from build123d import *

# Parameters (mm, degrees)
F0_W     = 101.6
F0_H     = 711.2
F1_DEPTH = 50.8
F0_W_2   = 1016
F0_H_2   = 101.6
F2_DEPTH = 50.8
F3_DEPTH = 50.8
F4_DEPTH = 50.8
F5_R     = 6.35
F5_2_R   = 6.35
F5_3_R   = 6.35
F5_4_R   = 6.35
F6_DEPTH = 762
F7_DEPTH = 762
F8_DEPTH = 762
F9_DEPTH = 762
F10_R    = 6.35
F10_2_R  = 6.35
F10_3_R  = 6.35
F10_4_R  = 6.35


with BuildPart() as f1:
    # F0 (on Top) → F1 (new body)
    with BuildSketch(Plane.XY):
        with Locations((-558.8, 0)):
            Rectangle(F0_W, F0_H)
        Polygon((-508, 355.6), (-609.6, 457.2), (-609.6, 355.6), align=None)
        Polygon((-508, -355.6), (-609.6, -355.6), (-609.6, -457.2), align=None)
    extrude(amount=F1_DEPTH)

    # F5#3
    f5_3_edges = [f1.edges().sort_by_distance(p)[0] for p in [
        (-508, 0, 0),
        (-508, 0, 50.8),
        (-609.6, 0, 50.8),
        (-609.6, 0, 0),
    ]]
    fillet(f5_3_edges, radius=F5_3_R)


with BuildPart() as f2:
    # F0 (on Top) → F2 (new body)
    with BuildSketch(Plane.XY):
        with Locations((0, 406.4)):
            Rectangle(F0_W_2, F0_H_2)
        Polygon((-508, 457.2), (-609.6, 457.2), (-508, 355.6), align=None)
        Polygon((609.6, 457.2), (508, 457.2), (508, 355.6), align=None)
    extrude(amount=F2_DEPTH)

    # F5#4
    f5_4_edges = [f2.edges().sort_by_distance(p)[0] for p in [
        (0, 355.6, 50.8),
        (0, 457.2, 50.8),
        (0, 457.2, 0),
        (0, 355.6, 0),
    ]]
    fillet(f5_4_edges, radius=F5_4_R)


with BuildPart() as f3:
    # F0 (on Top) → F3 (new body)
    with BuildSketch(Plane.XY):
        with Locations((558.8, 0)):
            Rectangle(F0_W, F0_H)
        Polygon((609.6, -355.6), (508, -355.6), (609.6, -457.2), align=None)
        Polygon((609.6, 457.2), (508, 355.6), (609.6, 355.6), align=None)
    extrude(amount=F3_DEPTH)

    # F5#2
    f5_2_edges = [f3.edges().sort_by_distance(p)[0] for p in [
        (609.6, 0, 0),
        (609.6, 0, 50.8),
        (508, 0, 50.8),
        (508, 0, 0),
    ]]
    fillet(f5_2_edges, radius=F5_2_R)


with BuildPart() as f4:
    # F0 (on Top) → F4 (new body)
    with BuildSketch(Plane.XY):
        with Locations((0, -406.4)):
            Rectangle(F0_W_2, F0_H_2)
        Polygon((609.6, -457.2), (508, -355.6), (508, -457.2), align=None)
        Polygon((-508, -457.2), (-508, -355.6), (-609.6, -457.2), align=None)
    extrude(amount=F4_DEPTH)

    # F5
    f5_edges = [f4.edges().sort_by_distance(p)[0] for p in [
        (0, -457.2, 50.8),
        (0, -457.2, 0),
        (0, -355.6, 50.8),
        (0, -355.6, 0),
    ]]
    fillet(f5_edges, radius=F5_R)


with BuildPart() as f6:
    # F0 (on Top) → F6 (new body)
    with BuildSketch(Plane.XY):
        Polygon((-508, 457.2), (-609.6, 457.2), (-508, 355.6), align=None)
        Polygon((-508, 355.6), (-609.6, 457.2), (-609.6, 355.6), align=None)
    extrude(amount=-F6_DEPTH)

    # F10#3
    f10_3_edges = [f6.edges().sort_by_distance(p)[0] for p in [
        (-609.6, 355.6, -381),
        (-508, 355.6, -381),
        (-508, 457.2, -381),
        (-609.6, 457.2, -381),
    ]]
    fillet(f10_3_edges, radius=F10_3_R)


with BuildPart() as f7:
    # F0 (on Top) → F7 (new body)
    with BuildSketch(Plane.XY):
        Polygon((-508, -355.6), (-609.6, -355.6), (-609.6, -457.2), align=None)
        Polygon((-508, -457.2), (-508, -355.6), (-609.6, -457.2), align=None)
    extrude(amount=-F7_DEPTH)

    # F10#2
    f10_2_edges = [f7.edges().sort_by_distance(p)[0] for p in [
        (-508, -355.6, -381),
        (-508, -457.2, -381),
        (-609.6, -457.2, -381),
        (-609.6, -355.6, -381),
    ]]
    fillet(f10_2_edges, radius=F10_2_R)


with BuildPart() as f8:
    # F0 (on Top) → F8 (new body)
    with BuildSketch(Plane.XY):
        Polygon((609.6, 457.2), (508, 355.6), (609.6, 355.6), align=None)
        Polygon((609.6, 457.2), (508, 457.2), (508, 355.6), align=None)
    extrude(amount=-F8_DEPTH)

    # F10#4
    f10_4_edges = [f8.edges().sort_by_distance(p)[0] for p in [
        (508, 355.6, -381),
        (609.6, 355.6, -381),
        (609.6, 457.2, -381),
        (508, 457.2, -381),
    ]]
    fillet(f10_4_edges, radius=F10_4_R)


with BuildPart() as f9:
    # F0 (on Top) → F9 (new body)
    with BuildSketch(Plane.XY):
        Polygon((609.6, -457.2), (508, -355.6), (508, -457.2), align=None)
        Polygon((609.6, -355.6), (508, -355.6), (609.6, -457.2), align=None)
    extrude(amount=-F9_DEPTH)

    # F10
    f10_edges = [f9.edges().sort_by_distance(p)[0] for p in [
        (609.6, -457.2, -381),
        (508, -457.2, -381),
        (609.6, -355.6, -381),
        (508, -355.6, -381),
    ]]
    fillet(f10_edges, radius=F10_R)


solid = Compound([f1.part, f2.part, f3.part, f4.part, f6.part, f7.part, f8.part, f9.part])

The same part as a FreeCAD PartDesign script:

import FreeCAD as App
import Part
import Sketcher
Q = App.Units.Quantity


def edges_at(feature, points):
    """Names of the edges that pass closest to the given points."""
    edges = feature.Shape.Edges
    near = lambda p: min(range(len(edges)), key=lambda i: edges[i].distToShape(Part.Vertex(*p))[0])
    return sorted({f"Edge{near(p) + 1}" for p in points})

doc = App.newDocument("Part")
body = doc.addObject("PartDesign::Body", "Body")

# Sketch on XY plane
sketch1 = body.newObject("Sketcher::SketchObject", "Sketch")
sketch1.AttachmentSupport = (doc.getObject("XY_Plane"), [""])
sketch1.MapMode = "FlatFace"
sketch1.addGeometry([
    Part.LineSegment(App.Vector(-508, -356, 0), App.Vector(-508, 356, 0)),
    Part.LineSegment(App.Vector(-508, 356, 0), App.Vector(-610, 457, 0)),
    Part.LineSegment(App.Vector(-610, 457, 0), App.Vector(-610, -457, 0)),
    Part.LineSegment(App.Vector(-610, -457, 0), App.Vector(-508, -356, 0)),
], False)
sketch1.addConstraint([
    Sketcher.Constraint("Coincident", 0, 2, 1, 1),
    Sketcher.Constraint("Coincident", 1, 2, 2, 1),
    Sketcher.Constraint("Coincident", 2, 2, 3, 1),
    Sketcher.Constraint("Coincident", 3, 2, 0, 1),
    Sketcher.Constraint("Vertical", 0),
    Sketcher.Constraint("Vertical", 2),
    Sketcher.Constraint("Perpendicular", 1, 3),
    Sketcher.Constraint("Equal", 1, 3),
    Sketcher.Constraint("DistanceY", 0, 1, 0, 2, Q("28 in")),
    Sketcher.Constraint("DistanceY", 2, 2, 2, 1, Q("36 in")),
    Sketcher.Constraint("DistanceX", 0, 2, -1, 1, Q("20 in")),
    Sketcher.Constraint("DistanceY", -1, 1, 0, 2, Q("14 in")),
])
pad1 = body.newObject("PartDesign::Pad", "Pad")
pad1.Profile = sketch1
pad1.Length = Q("2 in")
doc.recompute()

fillet = body.newObject("PartDesign::Fillet", "Fillet")
fillet.Base = (pad1, edges_at(pad1, [
    (-508, 0, 0),
    (-508, 0, 50.8),
    (-609.6, 0, 50.8),
    (-609.6, 0, 0),
]))
fillet.Radius = Q("0.25 in")
body2 = doc.addObject("PartDesign::Body", "Body001")

# Sketch on XY plane
sketch2 = body2.newObject("Sketcher::SketchObject", "Sketch001")
sketch2.AttachmentSupport = (doc.getObject("XY_Plane001"), [""])
sketch2.MapMode = "FlatFace"
sketch2.addGeometry([
    Part.LineSegment(App.Vector(-508, 356, 0), App.Vector(508, 356, 0)),
    Part.LineSegment(App.Vector(508, 356, 0), App.Vector(610, 457, 0)),
    Part.LineSegment(App.Vector(610, 457, 0), App.Vector(-610, 457, 0)),
    Part.LineSegment(App.Vector(-610, 457, 0), App.Vector(-508, 356, 0)),
], False)
sketch2.addConstraint([
    Sketcher.Constraint("Coincident", 0, 2, 1, 1),
    Sketcher.Constraint("Coincident", 1, 2, 2, 1),
    Sketcher.Constraint("Coincident", 2, 2, 3, 1),
    Sketcher.Constraint("Coincident", 3, 2, 0, 1),
    Sketcher.Constraint("Horizontal", 0),
    Sketcher.Constraint("Horizontal", 2),
    Sketcher.Constraint("Perpendicular", 1, 3),
    Sketcher.Constraint("Equal", 1, 3),
    Sketcher.Constraint("DistanceX", 0, 1, 0, 2, Q("40 in")),
    Sketcher.Constraint("DistanceX", 2, 2, 2, 1, Q("48 in")),
    Sketcher.Constraint("DistanceX", -1, 1, 0, 2, Q("20 in")),
    Sketcher.Constraint("DistanceY", -1, 1, 0, 2, Q("14 in")),
])
pad2 = body2.newObject("PartDesign::Pad", "Pad001")
pad2.Profile = sketch2
pad2.Length = Q("2 in")
doc.recompute()

fillet2 = body2.newObject("PartDesign::Fillet", "Fillet001")
fillet2.Base = (pad2, edges_at(pad2, [
    (0, 355.6, 50.8),
    (0, 457.2, 50.8),
    (0, 457.2, 0),
    (0, 355.6, 0),
]))
fillet2.Radius = Q("0.25 in")
body3 = doc.addObject("PartDesign::Body", "Body002")

# Sketch on XY plane
sketch3 = body3.newObject("Sketcher::SketchObject", "Sketch002")
sketch3.AttachmentSupport = (doc.getObject("XY_Plane002"), [""])
sketch3.MapMode = "FlatFace"
sketch3.addGeometry([
    Part.LineSegment(App.Vector(508, 356, 0), App.Vector(508, -356, 0)),
    Part.LineSegment(App.Vector(508, -356, 0), App.Vector(610, -457, 0)),
    Part.LineSegment(App.Vector(610, -457, 0), App.Vector(610, 457, 0)),
    Part.LineSegment(App.Vector(610, 457, 0), App.Vector(508, 356, 0)),
], False)
sketch3.addConstraint([
    Sketcher.Constraint("Coincident", 0, 2, 1, 1),
    Sketcher.Constraint("Coincident", 1, 2, 2, 1),
    Sketcher.Constraint("Coincident", 2, 2, 3, 1),
    Sketcher.Constraint("Coincident", 3, 2, 0, 1),
    Sketcher.Constraint("Vertical", 0),
    Sketcher.Constraint("Vertical", 2),
    Sketcher.Constraint("Perpendicular", 1, 3),
    Sketcher.Constraint("Equal", 1, 3),
    Sketcher.Constraint("DistanceY", 0, 2, 0, 1, Q("28 in")),
    Sketcher.Constraint("DistanceY", 2, 1, 2, 2, Q("36 in")),
    Sketcher.Constraint("DistanceX", -1, 1, 0, 2, Q("20 in")),
    Sketcher.Constraint("DistanceY", 0, 2, -1, 1, Q("14 in")),
])
pad3 = body3.newObject("PartDesign::Pad", "Pad002")
pad3.Profile = sketch3
pad3.Length = Q("2 in")
doc.recompute()

fillet3 = body3.newObject("PartDesign::Fillet", "Fillet002")
fillet3.Base = (pad3, edges_at(pad3, [
    (609.6, 0, 0),
    (609.6, 0, 50.8),
    (508, 0, 50.8),
    (508, 0, 0),
]))
fillet3.Radius = Q("0.25 in")
body4 = doc.addObject("PartDesign::Body", "Body003")

# Sketch on XY plane
sketch4 = body4.newObject("Sketcher::SketchObject", "Sketch003")
sketch4.AttachmentSupport = (doc.getObject("XY_Plane003"), [""])
sketch4.MapMode = "FlatFace"
sketch4.addGeometry([
    Part.LineSegment(App.Vector(610, -457, 0), App.Vector(508, -356, 0)),
    Part.LineSegment(App.Vector(508, -356, 0), App.Vector(-508, -356, 0)),
    Part.LineSegment(App.Vector(-508, -356, 0), App.Vector(-610, -457, 0)),
    Part.LineSegment(App.Vector(-610, -457, 0), App.Vector(610, -457, 0)),
], False)
sketch4.addConstraint([
    Sketcher.Constraint("Coincident", 0, 2, 1, 1),
    Sketcher.Constraint("Coincident", 1, 2, 2, 1),
    Sketcher.Constraint("Coincident", 2, 2, 3, 1),
    Sketcher.Constraint("Coincident", 3, 2, 0, 1),
    Sketcher.Constraint("Horizontal", 1),
    Sketcher.Constraint("Horizontal", 3),
    Sketcher.Constraint("Perpendicular", 0, 2),
    Sketcher.Constraint("Equal", 0, 2),
    Sketcher.Constraint("DistanceX", 1, 2, 1, 1, Q("40 in")),
    Sketcher.Constraint("DistanceX", 3, 1, 3, 2, Q("48 in")),
    Sketcher.Constraint("DistanceX", -1, 1, 0, 2, Q("20 in")),
    Sketcher.Constraint("DistanceY", 0, 2, -1, 1, Q("14 in")),
])
pad4 = body4.newObject("PartDesign::Pad", "Pad003")
pad4.Profile = sketch4
pad4.Length = Q("2 in")
doc.recompute()

fillet4 = body4.newObject("PartDesign::Fillet", "Fillet003")
fillet4.Base = (pad4, edges_at(pad4, [
    (0, -457.2, 50.8),
    (0, -457.2, 0),
    (0, -355.6, 50.8),
    (0, -355.6, 0),
]))
fillet4.Radius = Q("0.25 in")
body5 = doc.addObject("PartDesign::Body", "Body004")

# Sketch on XY plane
sketch5 = body5.newObject("Sketcher::SketchObject", "Sketch004")
sketch5.AttachmentSupport = (doc.getObject("XY_Plane004"), [""])
sketch5.MapMode = "FlatFace"
sketch5.addGeometry([
    Part.LineSegment(App.Vector(-508, 457, 0), App.Vector(-610, 457, 0)),
    Part.LineSegment(App.Vector(-610, 457, 0), App.Vector(-610, 356, 0)),
    Part.LineSegment(App.Vector(-610, 356, 0), App.Vector(-508, 356, 0)),
    Part.LineSegment(App.Vector(-508, 356, 0), App.Vector(-508, 457, 0)),
], False)
sketch5.addConstraint([
    Sketcher.Constraint("Coincident", 0, 2, 1, 1),
    Sketcher.Constraint("Coincident", 1, 2, 2, 1),
    Sketcher.Constraint("Coincident", 2, 2, 3, 1),
    Sketcher.Constraint("Coincident", 3, 2, 0, 1),
    Sketcher.Constraint("Horizontal", 0),
    Sketcher.Constraint("Vertical", 1),
    Sketcher.Constraint("Horizontal", 2),
    Sketcher.Constraint("Vertical", 3),
    Sketcher.Constraint("Equal", 2, 1),
    Sketcher.Constraint("DistanceX", 0, 2, 0, 1, Q("4 in")),
    Sketcher.Constraint("DistanceX", 0, 2, -1, 1, Q("24 in")),
    Sketcher.Constraint("DistanceY", -1, 1, 0, 2, Q("18 in")),
])
pad5 = body5.newObject("PartDesign::Pad", "Pad004")
pad5.Profile = sketch5
pad5.Length = Q("30 in")
pad5.Reversed = True
doc.recompute()

fillet5 = body5.newObject("PartDesign::Fillet", "Fillet004")
fillet5.Base = (pad5, edges_at(pad5, [
    (-609.6, 355.6, -381),
    (-508, 355.6, -381),
    (-508, 457.2, -381),
    (-609.6, 457.2, -381),
]))
fillet5.Radius = Q("0.25 in")
body6 = doc.addObject("PartDesign::Body", "Body005")

# Sketch on XY plane
sketch6 = body6.newObject("Sketcher::SketchObject", "Sketch005")
sketch6.AttachmentSupport = (doc.getObject("XY_Plane005"), [""])
sketch6.MapMode = "FlatFace"
sketch6.addGeometry([
    Part.LineSegment(App.Vector(-508, -356, 0), App.Vector(-610, -356, 0)),
    Part.LineSegment(App.Vector(-610, -356, 0), App.Vector(-610, -457, 0)),
    Part.LineSegment(App.Vector(-610, -457, 0), App.Vector(-508, -457, 0)),
    Part.LineSegment(App.Vector(-508, -457, 0), App.Vector(-508, -356, 0)),
], False)
sketch6.addConstraint([
    Sketcher.Constraint("Coincident", 0, 2, 1, 1),
    Sketcher.Constraint("Coincident", 1, 2, 2, 1),
    Sketcher.Constraint("Coincident", 2, 2, 3, 1),
    Sketcher.Constraint("Coincident", 3, 2, 0, 1),
    Sketcher.Constraint("Horizontal", 0),
    Sketcher.Constraint("Vertical", 1),
    Sketcher.Constraint("Horizontal", 2),
    Sketcher.Constraint("Vertical", 3),
    Sketcher.Constraint("Equal", 2, 1),
    Sketcher.Constraint("DistanceX", 0, 2, 0, 1, Q("4 in")),
    Sketcher.Constraint("DistanceX", 0, 2, -1, 1, Q("24 in")),
    Sketcher.Constraint("DistanceY", 0, 2, -1, 1, Q("14 in")),
])
pad6 = body6.newObject("PartDesign::Pad", "Pad005")
pad6.Profile = sketch6
pad6.Length = Q("30 in")
pad6.Reversed = True
doc.recompute()

fillet6 = body6.newObject("PartDesign::Fillet", "Fillet005")
fillet6.Base = (pad6, edges_at(pad6, [
    (-508, -355.6, -381),
    (-508, -457.2, -381),
    (-609.6, -457.2, -381),
    (-609.6, -355.6, -381),
]))
fillet6.Radius = Q("0.25 in")
body7 = doc.addObject("PartDesign::Body", "Body006")

# Sketch on XY plane
sketch7 = body7.newObject("Sketcher::SketchObject", "Sketch006")
sketch7.AttachmentSupport = (doc.getObject("XY_Plane006"), [""])
sketch7.MapMode = "FlatFace"
sketch7.addGeometry([
    Part.LineSegment(App.Vector(508, 356, 0), App.Vector(610, 356, 0)),
    Part.LineSegment(App.Vector(610, 356, 0), App.Vector(610, 457, 0)),
    Part.LineSegment(App.Vector(610, 457, 0), App.Vector(508, 457, 0)),
    Part.LineSegment(App.Vector(508, 457, 0), App.Vector(508, 356, 0)),
], False)
sketch7.addConstraint([
    Sketcher.Constraint("Coincident", 0, 2, 1, 1),
    Sketcher.Constraint("Coincident", 1, 2, 2, 1),
    Sketcher.Constraint("Coincident", 2, 2, 3, 1),
    Sketcher.Constraint("Coincident", 3, 2, 0, 1),
    Sketcher.Constraint("Horizontal", 0),
    Sketcher.Constraint("Vertical", 1),
    Sketcher.Constraint("Horizontal", 2),
    Sketcher.Constraint("Vertical", 3),
    Sketcher.Constraint("Equal", 2, 1),
    Sketcher.Constraint("DistanceX", 0, 1, 0, 2, Q("4 in")),
    Sketcher.Constraint("DistanceX", -1, 1, 0, 2, Q("24 in")),
    Sketcher.Constraint("DistanceY", -1, 1, 0, 2, Q("14 in")),
])
pad7 = body7.newObject("PartDesign::Pad", "Pad006")
pad7.Profile = sketch7
pad7.Length = Q("30 in")
pad7.Reversed = True
doc.recompute()

fillet7 = body7.newObject("PartDesign::Fillet", "Fillet006")
fillet7.Base = (pad7, edges_at(pad7, [
    (508, 355.6, -381),
    (609.6, 355.6, -381),
    (609.6, 457.2, -381),
    (508, 457.2, -381),
]))
fillet7.Radius = Q("0.25 in")
body8 = doc.addObject("PartDesign::Body", "Body007")

# Sketch on XY plane
sketch8 = body8.newObject("Sketcher::SketchObject", "Sketch007")
sketch8.AttachmentSupport = (doc.getObject("XY_Plane007"), [""])
sketch8.MapMode = "FlatFace"
sketch8.addGeometry([
    Part.LineSegment(App.Vector(508, -356, 0), App.Vector(508, -457, 0)),
    Part.LineSegment(App.Vector(508, -457, 0), App.Vector(610, -457, 0)),
    Part.LineSegment(App.Vector(610, -457, 0), App.Vector(610, -356, 0)),
    Part.LineSegment(App.Vector(610, -356, 0), App.Vector(508, -356, 0)),
], False)
sketch8.addConstraint([
    Sketcher.Constraint("Coincident", 0, 2, 1, 1),
    Sketcher.Constraint("Coincident", 1, 2, 2, 1),
    Sketcher.Constraint("Coincident", 2, 2, 3, 1),
    Sketcher.Constraint("Coincident", 3, 2, 0, 1),
    Sketcher.Constraint("Vertical", 0),
    Sketcher.Constraint("Horizontal", 1),
    Sketcher.Constraint("Vertical", 2),
    Sketcher.Constraint("Horizontal", 3),
    Sketcher.Constraint("Equal", 3, 0),
    Sketcher.Constraint("DistanceX", 1, 1, 1, 2, Q("4 in")),
    Sketcher.Constraint("DistanceX", -1, 1, 0, 2, Q("20 in")),
    Sketcher.Constraint("DistanceY", 0, 2, -1, 1, Q("18 in")),
])
pad8 = body8.newObject("PartDesign::Pad", "Pad007")
pad8.Profile = sketch8
pad8.Length = Q("30 in")
pad8.Reversed = True
doc.recompute()

fillet8 = body8.newObject("PartDesign::Fillet", "Fillet007")
fillet8.Base = (pad8, edges_at(pad8, [
    (609.6, -457.2, -381),
    (508, -457.2, -381),
    (609.6, -355.6, -381),
    (508, -355.6, -381),
]))
fillet8.Radius = Q("0.25 in")

doc.recompute()
